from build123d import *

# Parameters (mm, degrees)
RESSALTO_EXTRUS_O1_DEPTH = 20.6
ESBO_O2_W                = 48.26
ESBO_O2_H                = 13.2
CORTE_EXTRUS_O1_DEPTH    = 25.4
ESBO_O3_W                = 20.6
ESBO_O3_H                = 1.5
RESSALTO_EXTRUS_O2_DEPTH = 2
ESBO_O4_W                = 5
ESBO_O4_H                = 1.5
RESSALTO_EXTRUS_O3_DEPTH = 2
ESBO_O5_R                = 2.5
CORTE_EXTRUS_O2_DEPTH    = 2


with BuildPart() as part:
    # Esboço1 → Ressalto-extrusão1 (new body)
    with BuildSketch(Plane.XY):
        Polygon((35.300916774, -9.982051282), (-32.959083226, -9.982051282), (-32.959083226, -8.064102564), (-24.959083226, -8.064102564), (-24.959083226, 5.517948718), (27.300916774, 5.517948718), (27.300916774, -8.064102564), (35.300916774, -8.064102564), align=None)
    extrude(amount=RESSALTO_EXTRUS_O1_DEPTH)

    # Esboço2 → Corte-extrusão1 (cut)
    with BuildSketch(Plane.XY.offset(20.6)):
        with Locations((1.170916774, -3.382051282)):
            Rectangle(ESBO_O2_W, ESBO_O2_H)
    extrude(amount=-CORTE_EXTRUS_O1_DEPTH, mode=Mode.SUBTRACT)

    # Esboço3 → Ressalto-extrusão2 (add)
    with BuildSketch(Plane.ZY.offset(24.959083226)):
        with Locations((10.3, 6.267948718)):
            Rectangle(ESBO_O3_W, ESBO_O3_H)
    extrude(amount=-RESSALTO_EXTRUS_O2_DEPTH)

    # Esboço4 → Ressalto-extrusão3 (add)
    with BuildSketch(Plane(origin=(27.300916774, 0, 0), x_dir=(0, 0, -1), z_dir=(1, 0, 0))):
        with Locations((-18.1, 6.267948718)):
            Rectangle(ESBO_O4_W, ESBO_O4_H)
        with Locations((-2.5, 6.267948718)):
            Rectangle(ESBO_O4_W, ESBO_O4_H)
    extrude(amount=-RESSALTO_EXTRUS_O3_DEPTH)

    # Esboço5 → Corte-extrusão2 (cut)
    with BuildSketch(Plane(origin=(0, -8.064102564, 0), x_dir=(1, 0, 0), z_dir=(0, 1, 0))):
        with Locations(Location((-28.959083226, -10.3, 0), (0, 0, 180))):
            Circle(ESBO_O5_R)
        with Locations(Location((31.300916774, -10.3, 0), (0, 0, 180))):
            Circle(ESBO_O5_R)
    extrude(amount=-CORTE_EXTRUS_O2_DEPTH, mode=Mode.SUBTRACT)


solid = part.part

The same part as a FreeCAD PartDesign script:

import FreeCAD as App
import Part
import Sketcher
Q = App.Units.Quantity


def add_polygon(sketch, points):
    """Adds a closed chain of lines whose ends are joined by coincident constraints."""
    first, n = sketch.GeometryCount, len(points)
    for a, b in zip(points, points[1:] + points[:1]):
        sketch.addGeometry(Part.LineSegment(App.Vector(*a, 0), App.Vector(*b, 0)), False)
    for i in range(n):
        sketch.addConstraint(Sketcher.Constraint("Coincident", first + i, 2, first + (i + 1) % n, 1))

doc = App.newDocument("Part")
params = doc.addObject("Spreadsheet::Sheet", "Params")
for row, (alias, value) in enumerate([
    ("sketch1_width", "8 mm"),
    ("sketch1_width2", "68.26 mm"),
    ("pad1_length", "20.6 mm"),
    ("sketch2_height", "13.2 mm"),
    ("sketch2_width", "48.26 mm"),
    ("pocket1_length", "25.4 mm"),
    ("sketch3_width", "1.5 mm"),
    ("sketch3_height", "20.6 mm"),
    ("pad2_length", "2 mm"),
    ("sketch4_height", "5 mm"),
    ("sketch4_width", "1.5 mm"),
    ("pad3_length", "2 mm"),
    ("sketch5_diameter", "5 mm"),
    ("pocket2_length", "2 mm"),
], start=1):
    params.set(f"A{row}", alias)
    params.set(f"B{row}", "=" + value)
    params.setAlias(f"B{row}", alias)

body = doc.addObject("PartDesign::Body", "Body")

sketch1 = doc.addObject("Sketcher::SketchObject", "Sketch")
body.addObject(sketch1)
sketch1.AttachmentSupport = (doc.XY_Plane, [""])
sketch1.MapMode = "FlatFace"
add_polygon(sketch1, [(-33, -10), (35.3, -10), (35.3, -8.1), (27.3, -8.1), (27.3, 5.5), (-25, 5.5), (-25, -8.1), (-33, -8.1)])
sketch1.addConstraint(Sketcher.Constraint("Horizontal", 0))
sketch1.addConstraint(Sketcher.Constraint("Vertical", 1))
sketch1.addConstraint(Sketcher.Constraint("Horizontal", 2))
sketch1.addConstraint(Sketcher.Constraint("Vertical", 3))
sketch1.addConstraint(Sketcher.Constraint("Horizontal", 4))
sketch1.addConstraint(Sketcher.Constraint("Vertical", 5))
sketch1.addConstraint(Sketcher.Constraint("Horizontal", 6))
sketch1.addConstraint(Sketcher.Constraint("Vertical", 7))
sketch1.addConstraint(Sketcher.Constraint("Horizontal", 2, 2, 5, 2))
sketch1.addConstraint(Sketcher.Constraint("Equal", 2, 6))
sketch1.addConstraint(Sketcher.Constraint("DistanceX", 2, 2, 2, 1, Q("8 mm")))
sketch1.addConstraint(Sketcher.Constraint("DistanceX", 0, 1, 0, 2, Q("68.26 mm")))
sketch1.addConstraint(Sketcher.Constraint("DistanceY", 0, 2, 3, 2, Q("15.5 mm")))
sketch1.addConstraint(Sketcher.Constraint("DistanceY", 1, 1, 1, 2, Q("1.917949 mm")))
sketch1.addConstraint(Sketcher.Constraint("DistanceY", 0, 2, -1, 1, Q("9.982051 mm")))
sketch1.addConstraint(Sketcher.Constraint("DistanceX", -1, 1, 0, 2, Q("35.300917 mm")))
sketch1.setExpression("Constraints[18]", "Params.sketch1_width")
sketch1.setExpression("Constraints[19]", "Params.sketch1_width2")
pad1 = doc.addObject("PartDesign::Pad", "Pad")
body.addObject(pad1)
pad1.Profile = sketch1
pad1.setExpression("Length", "Params.pad1_length")

sketch2 = doc.addObject("Sketcher::SketchObject", "Sketch001")
body.addObject(sketch2)
sketch2.AttachmentSupport = (doc.XY_Plane, [""])
sketch2.MapMode = "FlatFace"
sketch2.AttachmentOffset = App.Placement(App.Vector(0, 0, 20.6), App.Rotation())
add_polygon(sketch2, [(-23, 3), (-23, -10), (25, -10), (25, 3)])
sketch2.addConstraint(Sketcher.Constraint("Vertical", 0))
sketch2.addConstraint(Sketcher.Constraint("Horizontal", 1))
sketch2.addConstraint(Sketcher.Constraint("Vertical", 2))
sketch2.addConstraint(Sketcher.Constraint("Horizontal", 3))
sketch2.addConstraint(Sketcher.Constraint("DistanceY", 0, 2, 0, 1, Q("13.2 mm")))
sketch2.addConstraint(Sketcher.Constraint("DistanceX", 1, 1, 1, 2, Q("48.26 mm")))
sketch2.addConstraint(Sketcher.Constraint("DistanceY", 0, 2, -1, 1, Q("9.982051 mm")))
sketch2.addConstraint(Sketcher.Constraint("DistanceX", 0, 2, -1, 1, Q("22.959083 mm")))
sketch2.setExpression("Constraints[8]", "Params.sketch2_height")
sketch2.setExpression("Constraints[9]", "Params.sketch2_width")
pocket1 = doc.addObject("PartDesign::Pocket", "Pocket")
body.addObject(pocket1)
pocket1.Profile = sketch2
pocket1.setExpression("Length", "Params.pocket1_length")

sketch3 = doc.addObject("Sketcher::SketchObject", "Sketch002")
body.addObject(sketch3)
sketch3.AttachmentSupport = (doc.YZ_Plane, [""])
sketch3.MapMode = "FlatFace"
sketch3.AttachmentOffset = App.Placement(App.Vector(0, 0, -24.959083), App.Rotation())
add_polygon(sketch3, [(7, 0), (5.5, 0), (5.5, 20.6), (7, 20.6)])
sketch3.addConstraint(Sketcher.Constraint("Horizontal", 0))
sketch3.addConstraint(Sketcher.Constraint("Vertical", 1))
sketch3.addConstraint(Sketcher.Constraint("Horizontal", 2))
sketch3.addConstraint(Sketcher.Constraint("Vertical", 3))
sketch3.addConstraint(Sketcher.Constraint("PointOnObject", 0, 2, -1))
sketch3.addConstraint(Sketcher.Constraint("DistanceX", 0, 2, 0, 1, Q("1.5 mm")))
sketch3.addConstraint(Sketcher.Constraint("DistanceY", 1, 1, 1, 2, Q("20.6 mm")))
sketch3.addConstraint(Sketcher.Constraint("DistanceX", -1, 1, 0, 2, Q("5.517949 mm")))
sketch3.setExpression("Constraints[9]", "Params.sketch3_width")
sketch3.setExpression("Constraints[10]", "Params.sketch3_height")
pad2 = doc.addObject("PartDesign::Pad", "Pad001")
body.addObject(pad2)
pad2.Profile = sketch3
pad2.setExpression("Length", "Params.pad2_length")

sketch4 = doc.addObject("Sketcher::SketchObject", "Sketch003")
body.addObject(sketch4)
sketch4.AttachmentSupport = (doc.YZ_Plane, [""])
sketch4.MapMode = "FlatFace"
sketch4.AttachmentOffset = App.Placement(App.Vector(0, 0, 27.300917), App.Rotation())
add_polygon(sketch4, [(7, 20.6), (5.5, 20.6), (5.5, 15.6), (7, 15.6)])
add_polygon(sketch4, [(7, 5), (5.5, 5), (5.5, 0), (7, 0)])
sketch4.addConstraint(Sketcher.Constraint("Horizontal", 0))
sketch4.addConstraint(Sketcher.Constraint("Vertical", 1))
sketch4.addConstraint(Sketcher.Constraint("Horizontal", 2))
sketch4.addConstraint(Sketcher.Constraint("Vertical", 3))
sketch4.addConstraint(Sketcher.Constraint("Horizontal", 4))
sketch4.addConstraint(Sketcher.Constraint("Vertical", 5))
sketch4.addConstraint(Sketcher.Constraint("Horizontal", 6))
sketch4.addConstraint(Sketcher.Constraint("Vertical", 7))
sketch4.addConstraint(Sketcher.Constraint("PointOnObject", 5, 2, -1))
sketch4.addConstraint(Sketcher.Constraint("Vertical", 1, 2, 4, 2))
sketch4.addConstraint(Sketcher.Constraint("Vertical", 3, 2, 6, 2))
sketch4.addConstraint(Sketcher.Constraint("Equal", 3, 5))
sketch4.addConstraint(Sketcher.Constraint("DistanceY", 1, 2, 1, 1, Q("5 mm")))
sketch4.addConstraint(Sketcher.Constraint("DistanceX", 0, 2, 0, 1, Q("1.5 mm")))
sketch4.addConstraint(Sketcher.Constraint("DistanceY", -1, 1, 0, 2, Q("20.6 mm")))
sketch4.addConstraint(Sketcher.Constraint("DistanceX", -1, 1, 0, 2, Q("5.517949 mm")))
sketch4.setExpression("Constraints[20]", "Params.sketch4_height")
sketch4.setExpression("Constraints[21]", "Params.sketch4_width")
pad3 = doc.addObject("PartDesign::Pad", "Pad002")
body.addObject(pad3)
pad3.Profile = sketch4
pad3.setExpression("Length", "Params.pad3_length")
pad3.Reversed = True

sketch5 = doc.addObject("Sketcher::SketchObject", "Sketch004")
body.addObject(sketch5)
sketch5.AttachmentSupport = (doc.XZ_Plane, [""])
sketch5.MapMode = "FlatFace"
sketch5.AttachmentOffset = App.Placement(App.Vector(0, 0, 8.064103), App.Rotation())
sketch5.addGeometry(Part.Circle(App.Vector(-29, 10.3, 0), App.Vector(0, 0, 1), 2.5), False)
sketch5.addGeometry(Part.Circle(App.Vector(31.3, 10.3, 0), App.Vector(0, 0, 1), 2.5), False)
sketch5.addConstraint(Sketcher.Constraint("Equal", 0, 1))
sketch5.addConstraint(Sketcher.Constraint("Horizontal", 0, 3, 1, 3))
sketch5.addConstraint(Sketcher.Constraint("Diameter", 0, Q("5 mm")))
sketch5.addConstraint(Sketcher.Constraint("DistanceY", -1, 1, 0, 3, Q("10.3 mm")))
sketch5.addConstraint(Sketcher.Constraint("DistanceX", 0, 3, 1, 3, Q("60.26 mm")))
sketch5.addConstraint(Sketcher.Constraint("DistanceX", 0, 3, -1, 1, Q("28.959083 mm")))
sketch5.setExpression("Constraints[2]", "Params.sketch5_diameter")
pocket2 = doc.addObject("PartDesign::Pocket", "Pocket001")
body.addObject(pocket2)
pocket2.Profile = sketch5
pocket2.setExpression("Length", "Params.pocket2_length")
pocket2.Reversed = True

doc.recompute()
